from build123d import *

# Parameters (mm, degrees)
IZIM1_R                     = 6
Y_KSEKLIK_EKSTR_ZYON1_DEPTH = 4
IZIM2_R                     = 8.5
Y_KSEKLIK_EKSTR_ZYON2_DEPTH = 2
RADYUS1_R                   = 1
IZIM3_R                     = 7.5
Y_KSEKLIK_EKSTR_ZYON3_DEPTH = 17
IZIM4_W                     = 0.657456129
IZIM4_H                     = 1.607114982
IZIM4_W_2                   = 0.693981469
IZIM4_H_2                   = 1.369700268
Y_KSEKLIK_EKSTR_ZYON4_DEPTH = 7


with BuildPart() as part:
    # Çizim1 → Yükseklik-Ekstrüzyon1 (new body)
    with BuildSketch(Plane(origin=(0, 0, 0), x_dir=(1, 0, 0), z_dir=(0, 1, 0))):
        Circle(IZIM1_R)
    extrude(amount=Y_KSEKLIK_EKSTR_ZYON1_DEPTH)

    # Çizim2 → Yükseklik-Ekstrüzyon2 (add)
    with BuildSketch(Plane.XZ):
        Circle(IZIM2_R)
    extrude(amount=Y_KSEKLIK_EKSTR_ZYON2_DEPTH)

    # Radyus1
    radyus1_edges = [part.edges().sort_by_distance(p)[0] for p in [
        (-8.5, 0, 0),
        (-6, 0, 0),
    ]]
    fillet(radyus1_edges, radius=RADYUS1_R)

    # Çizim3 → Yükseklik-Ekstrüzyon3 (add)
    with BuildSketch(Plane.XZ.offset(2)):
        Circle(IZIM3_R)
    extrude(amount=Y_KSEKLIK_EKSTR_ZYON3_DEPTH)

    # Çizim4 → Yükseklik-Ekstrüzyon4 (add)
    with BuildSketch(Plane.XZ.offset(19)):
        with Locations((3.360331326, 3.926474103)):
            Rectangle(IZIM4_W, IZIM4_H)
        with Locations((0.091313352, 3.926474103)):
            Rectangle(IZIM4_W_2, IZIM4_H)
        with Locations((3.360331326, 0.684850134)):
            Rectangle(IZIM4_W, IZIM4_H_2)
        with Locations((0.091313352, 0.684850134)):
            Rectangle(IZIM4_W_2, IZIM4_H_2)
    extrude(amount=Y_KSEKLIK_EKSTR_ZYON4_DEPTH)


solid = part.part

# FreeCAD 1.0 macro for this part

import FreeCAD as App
import Part
import Sketcher

V = App.Vector


def edges_at(feature, points):
    """Names of the edges that pass closest to the given points."""
    edges = feature.Shape.Edges
    near = lambda p: min(range(len(edges)), key=lambda i: edges[i].distToShape(Part.Vertex(*p))[0])
    return sorted({f"Edge{near(p) + 1}" for p in points})

doc = App.newDocument("Part")
body = doc.addObject("PartDesign::Body", "Body")

# Sketch on XZ plane
sketch1 = body.newObject("Sketcher::SketchObject", "Sketch")
sketch1.AttachmentSupport = (doc.getObject("XZ_Plane"), [""])
sketch1.MapMode = "FlatFace"
sketch1.addGeometry(Part.Circle(V(0, 0, 0), V(0, 0, 1), 6), False)
sketch1.addConstraint([
    Sketcher.Constraint("Coincident", 0, 3, -1, 1),
    Sketcher.Constraint("Diameter", 0, 12.0),
])
pad1 = body.newObject("PartDesign::Pad", "Pad")
pad1.Profile = sketch1
pad1.Length = 4
pad1.Reversed = True

# Sketch on XZ plane
sketch2 = body.newObject("Sketcher::SketchObject", "Sketch001")
sketch2.AttachmentSupport = (doc.getObject("XZ_Plane"), [""])
sketch2.MapMode = "FlatFace"
sketch2.addGeometry(Part.Circle(V(0, 0, 0), V(0, 0, 1), 8), False)
sketch2.addConstraint([
    Sketcher.Constraint("Coincident", 0, 3, -1, 1),
    Sketcher.Constraint("Diameter", 0, 17.0),
])
pad2 = body.newObject("PartDesign::Pad", "Pad001")
pad2.Profile = sketch2
pad2.Length = 2
doc.recompute()

fillet = body.newObject("PartDesign::Fillet", "Fillet")
fillet.Base = (pad2, edges_at(pad2, [(-8.5, 0, 0), (-6, 0, 0)]))
fillet.Radius = 1

# Sketch on XZ plane
sketch3 = body.newObject("Sketcher::SketchObject", "Sketch002")
sketch3.AttachmentSupport = (doc.getObject("XZ_Plane"), [""])
sketch3.MapMode = "FlatFace"
sketch3.AttachmentOffset = App.Placement(V(0, 0, 2), App.Rotation())
sketch3.addGeometry(Part.Circle(V(0, 0, 0), V(0, 0, 1), 8), False)
sketch3.addConstraint([
    Sketcher.Constraint("Coincident", 0, 3, -1, 1),
    Sketcher.Constraint("Diameter", 0, 15.0),
])
pad3 = body.newObject("PartDesign::Pad", "Pad002")
pad3.Profile = sketch3
pad3.Length = 17

# Sketch on XZ plane
sketch4 = body.newObject("Sketcher::SketchObject", "Sketch003")
sketch4.AttachmentSupport = (doc.getObject("XZ_Plane"), [""])
sketch4.MapMode = "FlatFace"
sketch4.AttachmentOffset = App.Placement(V(0, 0, 19), App.Rotation())
sketch4.addGeometry([
    Part.LineSegment(V(3, 4.7, 0), V(3, 3.1, 0)),  # 0
    Part.LineSegment(V(3, 3.1, 0), V(3.7, 3.1, 0)),  # 1
    Part.LineSegment(V(3.7, 3.1, 0), V(3.7, 4.7, 0)),  # 2
    Part.LineSegment(V(3.7, 4.7, 0), V(3, 4.7, 0)),  # 3
    Part.LineSegment(V(-0.3, 4.7, 0), V(-0.3, 3.1, 0)),  # 4
    Part.LineSegment(V(-0.3, 3.1, 0), V(0.4, 3.1, 0)),  # 5
    Part.LineSegment(V(0.4, 3.1, 0), V(0.4, 4.7, 0)),  # 6
    Part.LineSegment(V(0.4, 4.7, 0), V(-0.3, 4.7, 0)),  # 7
    Part.LineSegment(V(3, 1.4, 0), V(3, 0, 0)),  # 8
    Part.LineSegment(V(3, 0, 0), V(3.7, 0, 0)),  # 9
    Part.LineSegment(V(3.7, 0, 0), V(3.7, 1.4, 0)),  # 10
    Part.LineSegment(V(3.7, 1.4, 0), V(3, 1.4, 0)),  # 11
    Part.LineSegment(V(-0.3, 1.4, 0), V(-0.3, 0, 0)),  # 12
    Part.LineSegment(V(-0.3, 0, 0), V(0.4, 0, 0)),  # 13
    Part.LineSegment(V(0.4, 0, 0), V(0.4, 1.4, 0)),  # 14
    Part.LineSegment(V(0.4, 1.4, 0), V(-0.3, 1.4, 0)),  # 15
], False)
sketch4.addConstraint([
    Sketcher.Constraint("Coincident", 0, 2, 1, 1),
    Sketcher.Constraint("Coincident", 1, 2, 2, 1),
    Sketcher.Constraint("Coincident", 2, 2, 3, 1),
    Sketcher.Constraint("Coincident", 3, 2, 0, 1),
    Sketcher.Constraint("Coincident", 4, 2, 5, 1),
    Sketcher.Constraint("Coincident", 5, 2, 6, 1),
    Sketcher.Constraint("Coincident", 6, 2, 7, 1),
    Sketcher.Constraint("Coincident", 7, 2, 4, 1),
    Sketcher.Constraint("Coincident", 8, 2, 9, 1),
    Sketcher.Constraint("Coincident", 9, 2, 10, 1),
    Sketcher.Constraint("Coincident", 10, 2, 11, 1),
    Sketcher.Constraint("Coincident", 11, 2, 8, 1),
    Sketcher.Constraint("Coincident", 12, 2, 13, 1),
    Sketcher.Constraint("Coincident", 13, 2, 14, 1),
    Sketcher.Constraint("Coincident", 14, 2, 15, 1),
    Sketcher.Constraint("Coincident", 15, 2, 12, 1),
    Sketcher.Constraint("Vertical", 0),
    Sketcher.Constraint("Horizontal", 1),
    Sketcher.Constraint("Vertical", 2),
    Sketcher.Constraint("Horizontal", 3),
    Sketcher.Constraint("Vertical", 4),
    Sketcher.Constraint("Horizontal", 5),
    Sketcher.Constraint("Vertical", 6),
    Sketcher.Constraint("Horizontal", 7),
    Sketcher.Constraint("Vertical", 8),
    Sketcher.Constraint("Horizontal", 9),
    Sketcher.Constraint("Vertical", 10),
    Sketcher.Constraint("Horizontal", 11),
    Sketcher.Constraint("Vertical", 12),
    Sketcher.Constraint("Horizontal", 13),
    Sketcher.Constraint("Vertical", 14),
    Sketcher.Constraint("Horizontal", 15),
    Sketcher.Constraint("PointOnObject", 8, 2, -1),
    Sketcher.Constraint("PointOnObject", 12, 2, -1),
    Sketcher.Constraint("Horizontal", 1, 2, 4, 2),
    Sketcher.Constraint("Horizontal", 3, 2, 6, 2),
    Sketcher.Constraint("Horizontal", 11, 2, 14, 2),
    Sketcher.Constraint("Vertical", 3, 2, 8, 2),
    Sketcher.Constraint("Vertical", 2, 2, 9, 2),
    Sketcher.Constraint("Vertical", 7, 2, 12, 2),
    Sketcher.Constraint("Vertical", 6, 2, 13, 2),
    Sketcher.Constraint("DistanceY", 8, 2, 8, 1, 1.3697),
    Sketcher.Constraint("DistanceX", 5, 1, 5, 2, 0.693981),
    Sketcher.Constraint("DistanceX", 5, 2, 0, 2, 2.593299),
    Sketcher.Constraint("DistanceX", 1, 1, 1, 2, 0.657456),
    Sketcher.Constraint("DistanceY", 0, 2, 0, 1, 1.607115),
    Sketcher.Constraint("DistanceX", -1, 1, 1, 2, 3.689059),
    Sketcher.Constraint("DistanceY", -1, 1, 2, 2, 4.730032),
])
pad4 = body.newObject("PartDesign::Pad", "Pad003")
pad4.Profile = sketch4
pad4.Length = 7

doc.recompute()
